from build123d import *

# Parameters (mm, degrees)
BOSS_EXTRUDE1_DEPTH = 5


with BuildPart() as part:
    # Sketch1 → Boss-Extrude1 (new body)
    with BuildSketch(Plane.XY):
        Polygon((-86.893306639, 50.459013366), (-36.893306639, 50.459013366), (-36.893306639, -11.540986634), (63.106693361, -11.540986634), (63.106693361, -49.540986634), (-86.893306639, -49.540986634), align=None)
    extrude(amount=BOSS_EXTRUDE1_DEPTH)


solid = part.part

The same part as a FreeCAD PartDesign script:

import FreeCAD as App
import Part
import Sketcher


def add_polygon(sketch, points):
    """Adds a closed chain of lines whose ends are joined by coincident constraints."""
    first, n = sketch.GeometryCount, len(points)
    for a, b in zip(points, points[1:] + points[:1]):
        sketch.addGeometry(Part.LineSegment(App.Vector(*a, 0), App.Vector(*b, 0)), False)
    for i in range(n):
        sketch.addConstraint(Sketcher.Constraint("Coincident", first + i, 2, first + (i + 1) % n, 1))

doc = App.newDocument("Part")
body = doc.addObject("PartDesign::Body", "Body")

# Sketch on XY plane
sketch1 = doc.addObject("Sketcher::SketchObject", "Sketch")
body.addObject(sketch1)
sketch1.AttachmentSupport = (doc.XY_Plane, [""])
sketch1.MapMode = "FlatFace"
add_polygon(sketch1, [(-37, 50), (-87, 50), (-87, -50), (63, -50), (63, -12), (-37, -12)])  # lines 0-5
sketch1.addConstraint(Sketcher.Constraint("Horizontal", 0))
sketch1.addConstraint(Sketcher.Constraint("Vertical", 1))
sketch1.addConstraint(Sketcher.Constraint("Horizontal", 2))
sketch1.addConstraint(Sketcher.Constraint("Vertical", 3))
sketch1.addConstraint(Sketcher.Constraint("Horizontal", 4))
sketch1.addConstraint(Sketcher.Constraint("Vertical", 5))
sketch1.addConstraint(Sketcher.Constraint("Equal", 4, 1))
sketch1.addConstraint(Sketcher.Constraint("DistanceX", 0, 2, 0, 1, 50.0))
sketch1.addConstraint(Sketcher.Constraint("DistanceX", 2, 1, 2, 2, 150.0))
sketch1.addConstraint(Sketcher.Constraint("DistanceY", 3, 1, 3, 2, 38.0))
sketch1.addConstraint(Sketcher.Constraint("DistanceX", 0, 2, -1, 1, 86.893307))
sketch1.addConstraint(Sketcher.Constraint("DistanceY", -1, 1, 0, 2, 50.459013))
pad1 = doc.addObject("PartDesign::Pad", "Pad")
body.addObject(pad1)
pad1.Profile = sketch1
pad1.Length = 5

doc.recompute()
